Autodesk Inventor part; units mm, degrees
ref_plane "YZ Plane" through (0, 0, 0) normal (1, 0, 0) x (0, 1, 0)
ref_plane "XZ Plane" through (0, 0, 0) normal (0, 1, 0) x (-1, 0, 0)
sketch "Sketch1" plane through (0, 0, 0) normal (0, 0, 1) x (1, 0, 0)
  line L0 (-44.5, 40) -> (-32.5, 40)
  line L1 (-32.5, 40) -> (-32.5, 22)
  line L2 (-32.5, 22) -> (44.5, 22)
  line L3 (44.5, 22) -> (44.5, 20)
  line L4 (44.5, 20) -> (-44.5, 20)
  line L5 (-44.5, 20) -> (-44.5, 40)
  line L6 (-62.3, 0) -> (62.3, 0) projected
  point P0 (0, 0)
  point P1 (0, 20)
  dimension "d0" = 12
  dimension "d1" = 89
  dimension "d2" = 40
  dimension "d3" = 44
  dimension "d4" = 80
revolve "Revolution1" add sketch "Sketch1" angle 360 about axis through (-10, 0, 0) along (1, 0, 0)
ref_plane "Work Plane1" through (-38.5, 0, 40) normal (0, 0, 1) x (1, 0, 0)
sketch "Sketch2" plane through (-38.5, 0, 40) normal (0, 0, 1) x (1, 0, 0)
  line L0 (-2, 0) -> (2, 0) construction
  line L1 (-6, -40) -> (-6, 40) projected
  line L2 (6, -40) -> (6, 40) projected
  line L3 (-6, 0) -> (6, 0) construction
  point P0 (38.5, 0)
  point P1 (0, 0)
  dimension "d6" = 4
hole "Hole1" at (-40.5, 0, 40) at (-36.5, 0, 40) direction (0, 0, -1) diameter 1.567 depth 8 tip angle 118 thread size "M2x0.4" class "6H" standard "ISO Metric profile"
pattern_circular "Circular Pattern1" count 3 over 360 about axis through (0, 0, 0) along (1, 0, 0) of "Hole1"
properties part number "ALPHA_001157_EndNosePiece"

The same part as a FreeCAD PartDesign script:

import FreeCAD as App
import Part
import Sketcher
Q = App.Units.Quantity


def add_polygon(sketch, points):
    """Adds a closed chain of lines whose ends are joined by coincident constraints."""
    first, n = sketch.GeometryCount, len(points)
    for a, b in zip(points, points[1:] + points[:1]):
        sketch.addGeometry(Part.LineSegment(App.Vector(*a, 0), App.Vector(*b, 0)), False)
    for i in range(n):
        sketch.addConstraint(Sketcher.Constraint("Coincident", first + i, 2, first + (i + 1) % n, 1))

doc = App.newDocument("Part")
body = doc.addObject("PartDesign::Body", "Body")

sketch1 = body.newObject("Sketcher::SketchObject", "Sketch")
sketch1.AttachmentSupport = (doc.getObject("XY_Plane"), [""])
sketch1.MapMode = "FlatFace"
add_polygon(sketch1, [(-32.5, 40), (-44.5, 40), (-44.5, 20), (44.5, 20), (44.5, 22), (-32.5, 22)])
sketch1.addConstraint([
    Sketcher.Constraint("Horizontal", 0),
    Sketcher.Constraint("Vertical", 1),
    Sketcher.Constraint("Horizontal", 2),
    Sketcher.Constraint("Vertical", 3),
    Sketcher.Constraint("Horizontal", 4),
    Sketcher.Constraint("Vertical", 5),
    Sketcher.Constraint("DistanceX", 0, 2, 0, 1, Q("12 mm")),
    Sketcher.Constraint("DistanceX", 2, 1, 2, 2, Q("89 mm")),
    Sketcher.Constraint("DistanceY", -1, 1, 0, 2, Q("40 mm")),
    Sketcher.Constraint("DistanceY", 1, 2, 1, 1, Q("20 mm")),
    Sketcher.Constraint("DistanceY", 3, 1, 3, 2, Q("2 mm")),
    Sketcher.Constraint("DistanceX", 0, 2, -1, 1, Q("44.5 mm")),
])
revolution = body.newObject("PartDesign::Revolution", "Revolution")
revolution.Profile = sketch1
revolution.ReferenceAxis = (sketch1, ["H_Axis"])
revolution.Angle = 360

sketch2 = body.newObject("Sketcher::SketchObject", "Sketch001")
sketch2.AttachmentSupport = (doc.getObject("XY_Plane"), [""])
sketch2.MapMode = "FlatFace"
sketch2.AttachmentOffset = App.Placement(App.Vector(0, 0, 40), App.Rotation())
sketch2.addGeometry([
    Part.Circle(App.Vector(-40.5, 0, 0), App.Vector(0, 0, 1), 0.8),
    Part.Circle(App.Vector(-36.5, 0, 0), App.Vector(0, 0, 1), 0.8),
], False)
sketch2.addConstraint([
    Sketcher.Constraint("Equal", 0, 1),
    Sketcher.Constraint("PointOnObject", 0, 3, -1),
    Sketcher.Constraint("PointOnObject", 1, 3, -1),
    Sketcher.Constraint("Diameter", 0, Q("1.567 mm")),
    Sketcher.Constraint("DistanceX", 0, 3, 1, 3, Q("4 mm")),
    Sketcher.Constraint("DistanceX", 0, 3, -1, 1, Q("40.5 mm")),
])
doc.recompute()
hole = body.newObject("PartDesign::Hole", "Hole")
hole.Profile = sketch2
hole.ThreadType = "None"
hole.Diameter = 1.567
hole.DepthType = "Dimension"
hole.Depth = 8
hole.DrillPoint = "Angled"
hole.DrillPointAngle = 118
doc.recompute()

polarpattern = body.newObject("PartDesign::PolarPattern", "PolarPattern")
polarpattern.Originals = [hole]
polarpattern.Axis = (doc.getObject("X_Axis"), [""])
polarpattern.Angle = 360
polarpattern.Occurrences = 3
body.Tip = polarpattern

doc.recompute()
